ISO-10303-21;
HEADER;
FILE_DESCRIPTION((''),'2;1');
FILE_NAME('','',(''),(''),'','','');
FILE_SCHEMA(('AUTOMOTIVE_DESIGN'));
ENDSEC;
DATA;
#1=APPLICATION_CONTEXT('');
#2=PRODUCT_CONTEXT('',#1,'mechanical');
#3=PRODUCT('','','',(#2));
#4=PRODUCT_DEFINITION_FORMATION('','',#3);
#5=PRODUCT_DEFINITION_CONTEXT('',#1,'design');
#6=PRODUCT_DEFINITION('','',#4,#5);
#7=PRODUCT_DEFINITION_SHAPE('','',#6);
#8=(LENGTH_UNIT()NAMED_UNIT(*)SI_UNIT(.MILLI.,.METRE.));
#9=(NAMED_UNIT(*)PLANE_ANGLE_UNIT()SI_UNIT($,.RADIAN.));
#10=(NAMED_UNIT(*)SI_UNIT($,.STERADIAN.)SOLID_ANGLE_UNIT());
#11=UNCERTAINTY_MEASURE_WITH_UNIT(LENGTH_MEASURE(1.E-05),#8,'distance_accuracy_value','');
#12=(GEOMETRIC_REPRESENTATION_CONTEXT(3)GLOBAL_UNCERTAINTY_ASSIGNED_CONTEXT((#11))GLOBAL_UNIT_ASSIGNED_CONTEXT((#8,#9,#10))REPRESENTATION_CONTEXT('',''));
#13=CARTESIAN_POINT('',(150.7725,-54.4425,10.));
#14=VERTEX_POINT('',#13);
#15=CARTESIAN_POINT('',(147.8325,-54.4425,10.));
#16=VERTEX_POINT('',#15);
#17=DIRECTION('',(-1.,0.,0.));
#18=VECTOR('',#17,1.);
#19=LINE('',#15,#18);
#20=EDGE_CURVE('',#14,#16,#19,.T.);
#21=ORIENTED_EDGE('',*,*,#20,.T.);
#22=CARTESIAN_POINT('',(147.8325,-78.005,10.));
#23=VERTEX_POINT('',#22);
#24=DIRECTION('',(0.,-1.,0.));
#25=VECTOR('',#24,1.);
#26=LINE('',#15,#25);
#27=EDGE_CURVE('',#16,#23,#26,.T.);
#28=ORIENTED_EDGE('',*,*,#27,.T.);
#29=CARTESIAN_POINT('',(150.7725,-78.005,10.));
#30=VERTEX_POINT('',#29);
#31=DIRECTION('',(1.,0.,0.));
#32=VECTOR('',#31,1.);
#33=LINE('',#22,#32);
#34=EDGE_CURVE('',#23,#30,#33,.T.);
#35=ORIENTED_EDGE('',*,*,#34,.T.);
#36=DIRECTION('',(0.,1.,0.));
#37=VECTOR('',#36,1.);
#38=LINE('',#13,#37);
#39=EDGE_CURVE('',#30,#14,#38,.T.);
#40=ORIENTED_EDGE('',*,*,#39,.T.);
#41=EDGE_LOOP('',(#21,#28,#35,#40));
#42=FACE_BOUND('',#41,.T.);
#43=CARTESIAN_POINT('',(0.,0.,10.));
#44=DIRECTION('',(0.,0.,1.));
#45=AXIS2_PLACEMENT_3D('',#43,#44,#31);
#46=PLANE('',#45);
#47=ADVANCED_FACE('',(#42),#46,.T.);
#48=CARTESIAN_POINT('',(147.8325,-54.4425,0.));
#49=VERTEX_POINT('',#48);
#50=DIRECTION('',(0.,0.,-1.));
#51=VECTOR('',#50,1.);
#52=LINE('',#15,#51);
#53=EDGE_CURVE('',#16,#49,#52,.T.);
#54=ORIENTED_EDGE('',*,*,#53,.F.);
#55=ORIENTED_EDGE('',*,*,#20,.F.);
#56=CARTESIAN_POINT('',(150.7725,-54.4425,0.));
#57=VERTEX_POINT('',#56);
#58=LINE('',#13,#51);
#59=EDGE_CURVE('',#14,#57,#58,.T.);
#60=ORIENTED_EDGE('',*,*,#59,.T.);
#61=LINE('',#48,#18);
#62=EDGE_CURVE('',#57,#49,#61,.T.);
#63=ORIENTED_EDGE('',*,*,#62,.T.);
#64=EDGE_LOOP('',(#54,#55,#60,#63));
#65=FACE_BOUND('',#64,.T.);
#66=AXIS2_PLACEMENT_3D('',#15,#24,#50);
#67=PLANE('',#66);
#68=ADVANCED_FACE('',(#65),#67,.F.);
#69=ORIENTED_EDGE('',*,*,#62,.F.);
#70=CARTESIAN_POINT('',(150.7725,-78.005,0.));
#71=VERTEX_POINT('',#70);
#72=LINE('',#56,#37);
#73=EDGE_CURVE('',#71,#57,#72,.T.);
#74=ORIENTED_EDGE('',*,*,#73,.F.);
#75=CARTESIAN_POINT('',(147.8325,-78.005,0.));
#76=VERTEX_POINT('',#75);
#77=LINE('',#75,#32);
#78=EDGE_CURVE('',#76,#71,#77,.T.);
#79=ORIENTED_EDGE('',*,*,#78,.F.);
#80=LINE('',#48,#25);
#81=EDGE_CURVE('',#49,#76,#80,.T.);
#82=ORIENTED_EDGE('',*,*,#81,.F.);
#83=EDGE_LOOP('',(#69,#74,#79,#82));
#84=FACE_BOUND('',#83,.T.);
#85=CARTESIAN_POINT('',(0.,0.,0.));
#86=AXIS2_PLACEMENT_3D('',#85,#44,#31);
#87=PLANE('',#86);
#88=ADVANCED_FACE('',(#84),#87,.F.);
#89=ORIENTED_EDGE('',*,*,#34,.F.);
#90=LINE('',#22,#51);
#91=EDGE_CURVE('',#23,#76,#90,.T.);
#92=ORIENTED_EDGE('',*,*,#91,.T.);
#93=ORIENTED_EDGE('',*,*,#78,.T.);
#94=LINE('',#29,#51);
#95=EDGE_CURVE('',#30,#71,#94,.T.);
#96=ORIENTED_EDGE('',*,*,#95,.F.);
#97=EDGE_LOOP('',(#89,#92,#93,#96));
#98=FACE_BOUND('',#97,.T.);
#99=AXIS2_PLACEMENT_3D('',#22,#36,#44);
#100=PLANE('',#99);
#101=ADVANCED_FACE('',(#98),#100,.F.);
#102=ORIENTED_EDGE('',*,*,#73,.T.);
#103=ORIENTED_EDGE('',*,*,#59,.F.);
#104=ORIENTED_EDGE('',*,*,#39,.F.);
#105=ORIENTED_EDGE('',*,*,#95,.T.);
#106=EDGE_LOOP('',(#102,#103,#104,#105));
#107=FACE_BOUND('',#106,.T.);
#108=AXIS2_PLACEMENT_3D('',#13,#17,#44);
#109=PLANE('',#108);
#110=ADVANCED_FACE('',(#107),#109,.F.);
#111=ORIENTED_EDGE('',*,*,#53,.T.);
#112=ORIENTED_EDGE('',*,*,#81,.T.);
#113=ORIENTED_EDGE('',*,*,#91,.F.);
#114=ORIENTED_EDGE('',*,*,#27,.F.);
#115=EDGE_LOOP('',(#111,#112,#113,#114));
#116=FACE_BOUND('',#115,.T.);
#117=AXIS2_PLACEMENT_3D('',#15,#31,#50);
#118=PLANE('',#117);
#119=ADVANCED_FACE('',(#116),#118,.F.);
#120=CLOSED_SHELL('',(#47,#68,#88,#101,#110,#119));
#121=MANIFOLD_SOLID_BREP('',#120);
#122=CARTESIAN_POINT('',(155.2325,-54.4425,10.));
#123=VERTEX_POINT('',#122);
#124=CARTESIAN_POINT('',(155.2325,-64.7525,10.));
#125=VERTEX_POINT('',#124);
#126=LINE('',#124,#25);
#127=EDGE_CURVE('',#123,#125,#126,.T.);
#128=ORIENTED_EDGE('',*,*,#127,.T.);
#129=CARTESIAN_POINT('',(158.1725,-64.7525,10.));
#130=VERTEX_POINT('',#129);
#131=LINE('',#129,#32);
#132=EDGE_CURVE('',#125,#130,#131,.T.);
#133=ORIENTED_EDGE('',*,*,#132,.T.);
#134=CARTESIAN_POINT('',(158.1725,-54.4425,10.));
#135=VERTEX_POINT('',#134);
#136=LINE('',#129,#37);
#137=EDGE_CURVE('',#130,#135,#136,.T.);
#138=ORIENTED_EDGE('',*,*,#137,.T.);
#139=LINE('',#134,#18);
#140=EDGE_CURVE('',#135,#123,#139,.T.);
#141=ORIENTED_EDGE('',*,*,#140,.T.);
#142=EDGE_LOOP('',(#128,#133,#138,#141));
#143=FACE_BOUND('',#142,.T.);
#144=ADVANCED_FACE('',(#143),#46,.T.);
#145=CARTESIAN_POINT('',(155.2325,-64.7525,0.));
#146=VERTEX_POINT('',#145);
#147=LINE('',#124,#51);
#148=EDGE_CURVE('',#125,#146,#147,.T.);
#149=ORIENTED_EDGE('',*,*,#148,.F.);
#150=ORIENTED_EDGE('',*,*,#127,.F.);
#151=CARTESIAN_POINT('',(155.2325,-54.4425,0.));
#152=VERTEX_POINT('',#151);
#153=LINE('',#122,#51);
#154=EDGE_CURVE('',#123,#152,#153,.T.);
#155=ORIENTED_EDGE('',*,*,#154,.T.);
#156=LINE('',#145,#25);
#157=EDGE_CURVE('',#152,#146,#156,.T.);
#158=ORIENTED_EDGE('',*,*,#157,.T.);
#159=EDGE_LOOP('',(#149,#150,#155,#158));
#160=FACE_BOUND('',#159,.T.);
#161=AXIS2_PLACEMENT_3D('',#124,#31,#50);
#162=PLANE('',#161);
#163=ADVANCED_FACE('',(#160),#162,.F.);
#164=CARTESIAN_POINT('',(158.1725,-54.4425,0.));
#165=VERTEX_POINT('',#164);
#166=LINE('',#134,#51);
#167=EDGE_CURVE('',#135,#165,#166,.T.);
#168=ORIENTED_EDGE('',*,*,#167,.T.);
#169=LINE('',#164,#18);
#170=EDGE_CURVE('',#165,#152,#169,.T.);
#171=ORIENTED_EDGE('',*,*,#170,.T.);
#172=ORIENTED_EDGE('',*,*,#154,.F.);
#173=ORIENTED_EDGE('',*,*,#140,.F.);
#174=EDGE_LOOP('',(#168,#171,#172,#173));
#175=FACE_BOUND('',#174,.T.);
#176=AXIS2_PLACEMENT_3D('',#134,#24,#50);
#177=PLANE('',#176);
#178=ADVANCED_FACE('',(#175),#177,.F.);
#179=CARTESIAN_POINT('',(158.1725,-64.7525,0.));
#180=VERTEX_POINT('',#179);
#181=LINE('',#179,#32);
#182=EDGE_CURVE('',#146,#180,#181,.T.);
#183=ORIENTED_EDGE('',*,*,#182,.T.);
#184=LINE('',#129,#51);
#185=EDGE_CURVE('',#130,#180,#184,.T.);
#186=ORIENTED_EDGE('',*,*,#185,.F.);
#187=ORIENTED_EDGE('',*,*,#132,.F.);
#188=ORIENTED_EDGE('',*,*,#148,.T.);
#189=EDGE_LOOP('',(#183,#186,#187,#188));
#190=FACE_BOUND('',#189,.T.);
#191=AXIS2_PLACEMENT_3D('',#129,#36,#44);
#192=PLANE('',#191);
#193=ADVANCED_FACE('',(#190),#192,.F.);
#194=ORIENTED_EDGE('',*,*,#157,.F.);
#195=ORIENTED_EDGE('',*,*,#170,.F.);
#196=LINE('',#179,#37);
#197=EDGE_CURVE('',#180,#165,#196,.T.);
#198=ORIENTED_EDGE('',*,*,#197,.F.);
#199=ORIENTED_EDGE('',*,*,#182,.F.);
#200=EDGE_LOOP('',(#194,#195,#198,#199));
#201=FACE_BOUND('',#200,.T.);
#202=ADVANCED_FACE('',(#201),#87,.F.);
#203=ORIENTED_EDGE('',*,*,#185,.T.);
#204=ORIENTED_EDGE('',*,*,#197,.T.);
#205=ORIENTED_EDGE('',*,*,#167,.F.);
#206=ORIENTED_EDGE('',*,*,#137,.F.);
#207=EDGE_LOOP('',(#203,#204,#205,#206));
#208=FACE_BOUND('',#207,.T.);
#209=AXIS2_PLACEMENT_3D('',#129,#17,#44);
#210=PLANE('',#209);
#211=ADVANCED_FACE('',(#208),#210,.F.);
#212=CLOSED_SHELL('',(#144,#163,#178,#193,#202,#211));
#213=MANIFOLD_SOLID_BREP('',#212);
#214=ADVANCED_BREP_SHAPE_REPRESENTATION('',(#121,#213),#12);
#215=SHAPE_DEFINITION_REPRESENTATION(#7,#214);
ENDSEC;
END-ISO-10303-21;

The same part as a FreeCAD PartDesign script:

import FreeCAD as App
import Part
import Sketcher

V = App.Vector
Q = App.Units.Quantity

doc = App.newDocument("Part")
body = doc.addObject("PartDesign::Body", "Body")

# Sketch on XY plane
sketch1 = doc.addObject("Sketcher::SketchObject", "Sketch")
body.addObject(sketch1)
sketch1.AttachmentSupport = (doc.XY_Plane, [""])
sketch1.MapMode = "FlatFace"
sketch1.addGeometry(Part.LineSegment(V(147.8, -54.4, 0), V(147.8, -78, 0)), False)
sketch1.addGeometry(Part.LineSegment(V(147.8, -78, 0), V(150.8, -78, 0)), False)
sketch1.addGeometry(Part.LineSegment(V(150.8, -78, 0), V(150.8, -54.4, 0)), False)
sketch1.addGeometry(Part.LineSegment(V(150.8, -54.4, 0), V(147.8, -54.4, 0)), False)
sketch1.addConstraint(Sketcher.Constraint("Coincident", 0, 2, 1, 1))
sketch1.addConstraint(Sketcher.Constraint("Coincident", 1, 2, 2, 1))
sketch1.addConstraint(Sketcher.Constraint("Coincident", 2, 2, 3, 1))
sketch1.addConstraint(Sketcher.Constraint("Coincident", 3, 2, 0, 1))
sketch1.addConstraint(Sketcher.Constraint("Vertical", 0))
sketch1.addConstraint(Sketcher.Constraint("Horizontal", 1))
sketch1.addConstraint(Sketcher.Constraint("Vertical", 2))
sketch1.addConstraint(Sketcher.Constraint("Horizontal", 3))
sketch1.addConstraint(Sketcher.Constraint("DistanceX", 1, 1, 1, 2, Q("2.94 mm")))
sketch1.addConstraint(Sketcher.Constraint("DistanceY", 0, 2, 0, 1, Q("23.5625 mm")))
sketch1.addConstraint(Sketcher.Constraint("DistanceY", 0, 2, -1, 1, Q("78.005 mm")))
sketch1.addConstraint(Sketcher.Constraint("DistanceX", -1, 1, 0, 2, Q("147.8325 mm")))
pad1 = doc.addObject("PartDesign::Pad", "Pad")
body.addObject(pad1)
pad1.Profile = sketch1
pad1.Length = 10
body2 = doc.addObject("PartDesign::Body", "Body001")

# Sketch on XY plane
sketch2 = doc.addObject("Sketcher::SketchObject", "Sketch001")
body2.addObject(sketch2)
sketch2.AttachmentSupport = (doc.getObject("XY_Plane001"), [""])
sketch2.MapMode = "FlatFace"
sketch2.addGeometry(Part.LineSegment(V(155.2, -54.4, 0), V(155.2, -64.8, 0)), False)
sketch2.addGeometry(Part.LineSegment(V(155.2, -64.8, 0), V(158.2, -64.8, 0)), False)
sketch2.addGeometry(Part.LineSegment(V(158.2, -64.8, 0), V(158.2, -54.4, 0)), False)
sketch2.addGeometry(Part.LineSegment(V(158.2, -54.4, 0), V(155.2, -54.4, 0)), False)
sketch2.addConstraint(Sketcher.Constraint("Coincident", 0, 2, 1, 1))
sketch2.addConstraint(Sketcher.Constraint("Coincident", 1, 2, 2, 1))
sketch2.addConstraint(Sketcher.Constraint("Coincident", 2, 2, 3, 1))
sketch2.addConstraint(Sketcher.Constraint("Coincident", 3, 2, 0, 1))
sketch2.addConstraint(Sketcher.Constraint("Vertical", 0))
sketch2.addConstraint(Sketcher.Constraint("Horizontal", 1))
sketch2.addConstraint(Sketcher.Constraint("Vertical", 2))
sketch2.addConstraint(Sketcher.Constraint("Horizontal", 3))
sketch2.addConstraint(Sketcher.Constraint("DistanceX", 1, 1, 1, 2, Q("2.94 mm")))
sketch2.addConstraint(Sketcher.Constraint("DistanceY", 0, 2, 0, 1, Q("10.31 mm")))
sketch2.addConstraint(Sketcher.Constraint("DistanceX", -1, 1, 0, 2, Q("155.2325 mm")))
sketch2.addConstraint(Sketcher.Constraint("DistanceY", 0, 2, -1, 1, Q("64.7525 mm")))
pad2 = doc.addObject("PartDesign::Pad", "Pad001")
body2.addObject(pad2)
pad2.Profile = sketch2
pad2.Length = 10

doc.recompute()
